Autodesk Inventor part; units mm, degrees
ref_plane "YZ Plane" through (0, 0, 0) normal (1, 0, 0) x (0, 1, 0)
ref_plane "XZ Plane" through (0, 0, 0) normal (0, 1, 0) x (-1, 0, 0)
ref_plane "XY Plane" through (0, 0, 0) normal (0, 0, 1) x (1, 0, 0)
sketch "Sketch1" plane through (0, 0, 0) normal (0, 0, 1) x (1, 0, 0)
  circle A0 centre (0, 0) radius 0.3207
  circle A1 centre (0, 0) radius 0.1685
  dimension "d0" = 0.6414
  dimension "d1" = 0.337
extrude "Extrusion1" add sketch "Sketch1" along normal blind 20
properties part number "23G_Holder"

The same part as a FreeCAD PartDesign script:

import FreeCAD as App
import Part
import Sketcher

doc = App.newDocument("Part")
body = doc.addObject("PartDesign::Body", "Body")

sketch1 = body.newObject("Sketcher::SketchObject", "Sketch")
sketch1.AttachmentSupport = (doc.getObject("XY_Plane"), [""])
sketch1.MapMode = "FlatFace"
sketch1.addGeometry([
    Part.Circle(App.Vector(0, 0, 0), App.Vector(0, 0, 1), 0.32),
    Part.Circle(App.Vector(0, 0, 0), App.Vector(0, 0, 1), 0.17),
], False)
sketch1.addConstraint([
    Sketcher.Constraint("Coincident", 0, 3, -1, 1),
    Sketcher.Constraint("Coincident", 1, 3, -1, 1),
    Sketcher.Constraint("Diameter", 1, 0.337),
    Sketcher.Constraint("Diameter", 0, 0.6414),
])
pad1 = body.newObject("PartDesign::Pad", "Pad")
pad1.Profile = sketch1
pad1.Length = 20

doc.recompute()
